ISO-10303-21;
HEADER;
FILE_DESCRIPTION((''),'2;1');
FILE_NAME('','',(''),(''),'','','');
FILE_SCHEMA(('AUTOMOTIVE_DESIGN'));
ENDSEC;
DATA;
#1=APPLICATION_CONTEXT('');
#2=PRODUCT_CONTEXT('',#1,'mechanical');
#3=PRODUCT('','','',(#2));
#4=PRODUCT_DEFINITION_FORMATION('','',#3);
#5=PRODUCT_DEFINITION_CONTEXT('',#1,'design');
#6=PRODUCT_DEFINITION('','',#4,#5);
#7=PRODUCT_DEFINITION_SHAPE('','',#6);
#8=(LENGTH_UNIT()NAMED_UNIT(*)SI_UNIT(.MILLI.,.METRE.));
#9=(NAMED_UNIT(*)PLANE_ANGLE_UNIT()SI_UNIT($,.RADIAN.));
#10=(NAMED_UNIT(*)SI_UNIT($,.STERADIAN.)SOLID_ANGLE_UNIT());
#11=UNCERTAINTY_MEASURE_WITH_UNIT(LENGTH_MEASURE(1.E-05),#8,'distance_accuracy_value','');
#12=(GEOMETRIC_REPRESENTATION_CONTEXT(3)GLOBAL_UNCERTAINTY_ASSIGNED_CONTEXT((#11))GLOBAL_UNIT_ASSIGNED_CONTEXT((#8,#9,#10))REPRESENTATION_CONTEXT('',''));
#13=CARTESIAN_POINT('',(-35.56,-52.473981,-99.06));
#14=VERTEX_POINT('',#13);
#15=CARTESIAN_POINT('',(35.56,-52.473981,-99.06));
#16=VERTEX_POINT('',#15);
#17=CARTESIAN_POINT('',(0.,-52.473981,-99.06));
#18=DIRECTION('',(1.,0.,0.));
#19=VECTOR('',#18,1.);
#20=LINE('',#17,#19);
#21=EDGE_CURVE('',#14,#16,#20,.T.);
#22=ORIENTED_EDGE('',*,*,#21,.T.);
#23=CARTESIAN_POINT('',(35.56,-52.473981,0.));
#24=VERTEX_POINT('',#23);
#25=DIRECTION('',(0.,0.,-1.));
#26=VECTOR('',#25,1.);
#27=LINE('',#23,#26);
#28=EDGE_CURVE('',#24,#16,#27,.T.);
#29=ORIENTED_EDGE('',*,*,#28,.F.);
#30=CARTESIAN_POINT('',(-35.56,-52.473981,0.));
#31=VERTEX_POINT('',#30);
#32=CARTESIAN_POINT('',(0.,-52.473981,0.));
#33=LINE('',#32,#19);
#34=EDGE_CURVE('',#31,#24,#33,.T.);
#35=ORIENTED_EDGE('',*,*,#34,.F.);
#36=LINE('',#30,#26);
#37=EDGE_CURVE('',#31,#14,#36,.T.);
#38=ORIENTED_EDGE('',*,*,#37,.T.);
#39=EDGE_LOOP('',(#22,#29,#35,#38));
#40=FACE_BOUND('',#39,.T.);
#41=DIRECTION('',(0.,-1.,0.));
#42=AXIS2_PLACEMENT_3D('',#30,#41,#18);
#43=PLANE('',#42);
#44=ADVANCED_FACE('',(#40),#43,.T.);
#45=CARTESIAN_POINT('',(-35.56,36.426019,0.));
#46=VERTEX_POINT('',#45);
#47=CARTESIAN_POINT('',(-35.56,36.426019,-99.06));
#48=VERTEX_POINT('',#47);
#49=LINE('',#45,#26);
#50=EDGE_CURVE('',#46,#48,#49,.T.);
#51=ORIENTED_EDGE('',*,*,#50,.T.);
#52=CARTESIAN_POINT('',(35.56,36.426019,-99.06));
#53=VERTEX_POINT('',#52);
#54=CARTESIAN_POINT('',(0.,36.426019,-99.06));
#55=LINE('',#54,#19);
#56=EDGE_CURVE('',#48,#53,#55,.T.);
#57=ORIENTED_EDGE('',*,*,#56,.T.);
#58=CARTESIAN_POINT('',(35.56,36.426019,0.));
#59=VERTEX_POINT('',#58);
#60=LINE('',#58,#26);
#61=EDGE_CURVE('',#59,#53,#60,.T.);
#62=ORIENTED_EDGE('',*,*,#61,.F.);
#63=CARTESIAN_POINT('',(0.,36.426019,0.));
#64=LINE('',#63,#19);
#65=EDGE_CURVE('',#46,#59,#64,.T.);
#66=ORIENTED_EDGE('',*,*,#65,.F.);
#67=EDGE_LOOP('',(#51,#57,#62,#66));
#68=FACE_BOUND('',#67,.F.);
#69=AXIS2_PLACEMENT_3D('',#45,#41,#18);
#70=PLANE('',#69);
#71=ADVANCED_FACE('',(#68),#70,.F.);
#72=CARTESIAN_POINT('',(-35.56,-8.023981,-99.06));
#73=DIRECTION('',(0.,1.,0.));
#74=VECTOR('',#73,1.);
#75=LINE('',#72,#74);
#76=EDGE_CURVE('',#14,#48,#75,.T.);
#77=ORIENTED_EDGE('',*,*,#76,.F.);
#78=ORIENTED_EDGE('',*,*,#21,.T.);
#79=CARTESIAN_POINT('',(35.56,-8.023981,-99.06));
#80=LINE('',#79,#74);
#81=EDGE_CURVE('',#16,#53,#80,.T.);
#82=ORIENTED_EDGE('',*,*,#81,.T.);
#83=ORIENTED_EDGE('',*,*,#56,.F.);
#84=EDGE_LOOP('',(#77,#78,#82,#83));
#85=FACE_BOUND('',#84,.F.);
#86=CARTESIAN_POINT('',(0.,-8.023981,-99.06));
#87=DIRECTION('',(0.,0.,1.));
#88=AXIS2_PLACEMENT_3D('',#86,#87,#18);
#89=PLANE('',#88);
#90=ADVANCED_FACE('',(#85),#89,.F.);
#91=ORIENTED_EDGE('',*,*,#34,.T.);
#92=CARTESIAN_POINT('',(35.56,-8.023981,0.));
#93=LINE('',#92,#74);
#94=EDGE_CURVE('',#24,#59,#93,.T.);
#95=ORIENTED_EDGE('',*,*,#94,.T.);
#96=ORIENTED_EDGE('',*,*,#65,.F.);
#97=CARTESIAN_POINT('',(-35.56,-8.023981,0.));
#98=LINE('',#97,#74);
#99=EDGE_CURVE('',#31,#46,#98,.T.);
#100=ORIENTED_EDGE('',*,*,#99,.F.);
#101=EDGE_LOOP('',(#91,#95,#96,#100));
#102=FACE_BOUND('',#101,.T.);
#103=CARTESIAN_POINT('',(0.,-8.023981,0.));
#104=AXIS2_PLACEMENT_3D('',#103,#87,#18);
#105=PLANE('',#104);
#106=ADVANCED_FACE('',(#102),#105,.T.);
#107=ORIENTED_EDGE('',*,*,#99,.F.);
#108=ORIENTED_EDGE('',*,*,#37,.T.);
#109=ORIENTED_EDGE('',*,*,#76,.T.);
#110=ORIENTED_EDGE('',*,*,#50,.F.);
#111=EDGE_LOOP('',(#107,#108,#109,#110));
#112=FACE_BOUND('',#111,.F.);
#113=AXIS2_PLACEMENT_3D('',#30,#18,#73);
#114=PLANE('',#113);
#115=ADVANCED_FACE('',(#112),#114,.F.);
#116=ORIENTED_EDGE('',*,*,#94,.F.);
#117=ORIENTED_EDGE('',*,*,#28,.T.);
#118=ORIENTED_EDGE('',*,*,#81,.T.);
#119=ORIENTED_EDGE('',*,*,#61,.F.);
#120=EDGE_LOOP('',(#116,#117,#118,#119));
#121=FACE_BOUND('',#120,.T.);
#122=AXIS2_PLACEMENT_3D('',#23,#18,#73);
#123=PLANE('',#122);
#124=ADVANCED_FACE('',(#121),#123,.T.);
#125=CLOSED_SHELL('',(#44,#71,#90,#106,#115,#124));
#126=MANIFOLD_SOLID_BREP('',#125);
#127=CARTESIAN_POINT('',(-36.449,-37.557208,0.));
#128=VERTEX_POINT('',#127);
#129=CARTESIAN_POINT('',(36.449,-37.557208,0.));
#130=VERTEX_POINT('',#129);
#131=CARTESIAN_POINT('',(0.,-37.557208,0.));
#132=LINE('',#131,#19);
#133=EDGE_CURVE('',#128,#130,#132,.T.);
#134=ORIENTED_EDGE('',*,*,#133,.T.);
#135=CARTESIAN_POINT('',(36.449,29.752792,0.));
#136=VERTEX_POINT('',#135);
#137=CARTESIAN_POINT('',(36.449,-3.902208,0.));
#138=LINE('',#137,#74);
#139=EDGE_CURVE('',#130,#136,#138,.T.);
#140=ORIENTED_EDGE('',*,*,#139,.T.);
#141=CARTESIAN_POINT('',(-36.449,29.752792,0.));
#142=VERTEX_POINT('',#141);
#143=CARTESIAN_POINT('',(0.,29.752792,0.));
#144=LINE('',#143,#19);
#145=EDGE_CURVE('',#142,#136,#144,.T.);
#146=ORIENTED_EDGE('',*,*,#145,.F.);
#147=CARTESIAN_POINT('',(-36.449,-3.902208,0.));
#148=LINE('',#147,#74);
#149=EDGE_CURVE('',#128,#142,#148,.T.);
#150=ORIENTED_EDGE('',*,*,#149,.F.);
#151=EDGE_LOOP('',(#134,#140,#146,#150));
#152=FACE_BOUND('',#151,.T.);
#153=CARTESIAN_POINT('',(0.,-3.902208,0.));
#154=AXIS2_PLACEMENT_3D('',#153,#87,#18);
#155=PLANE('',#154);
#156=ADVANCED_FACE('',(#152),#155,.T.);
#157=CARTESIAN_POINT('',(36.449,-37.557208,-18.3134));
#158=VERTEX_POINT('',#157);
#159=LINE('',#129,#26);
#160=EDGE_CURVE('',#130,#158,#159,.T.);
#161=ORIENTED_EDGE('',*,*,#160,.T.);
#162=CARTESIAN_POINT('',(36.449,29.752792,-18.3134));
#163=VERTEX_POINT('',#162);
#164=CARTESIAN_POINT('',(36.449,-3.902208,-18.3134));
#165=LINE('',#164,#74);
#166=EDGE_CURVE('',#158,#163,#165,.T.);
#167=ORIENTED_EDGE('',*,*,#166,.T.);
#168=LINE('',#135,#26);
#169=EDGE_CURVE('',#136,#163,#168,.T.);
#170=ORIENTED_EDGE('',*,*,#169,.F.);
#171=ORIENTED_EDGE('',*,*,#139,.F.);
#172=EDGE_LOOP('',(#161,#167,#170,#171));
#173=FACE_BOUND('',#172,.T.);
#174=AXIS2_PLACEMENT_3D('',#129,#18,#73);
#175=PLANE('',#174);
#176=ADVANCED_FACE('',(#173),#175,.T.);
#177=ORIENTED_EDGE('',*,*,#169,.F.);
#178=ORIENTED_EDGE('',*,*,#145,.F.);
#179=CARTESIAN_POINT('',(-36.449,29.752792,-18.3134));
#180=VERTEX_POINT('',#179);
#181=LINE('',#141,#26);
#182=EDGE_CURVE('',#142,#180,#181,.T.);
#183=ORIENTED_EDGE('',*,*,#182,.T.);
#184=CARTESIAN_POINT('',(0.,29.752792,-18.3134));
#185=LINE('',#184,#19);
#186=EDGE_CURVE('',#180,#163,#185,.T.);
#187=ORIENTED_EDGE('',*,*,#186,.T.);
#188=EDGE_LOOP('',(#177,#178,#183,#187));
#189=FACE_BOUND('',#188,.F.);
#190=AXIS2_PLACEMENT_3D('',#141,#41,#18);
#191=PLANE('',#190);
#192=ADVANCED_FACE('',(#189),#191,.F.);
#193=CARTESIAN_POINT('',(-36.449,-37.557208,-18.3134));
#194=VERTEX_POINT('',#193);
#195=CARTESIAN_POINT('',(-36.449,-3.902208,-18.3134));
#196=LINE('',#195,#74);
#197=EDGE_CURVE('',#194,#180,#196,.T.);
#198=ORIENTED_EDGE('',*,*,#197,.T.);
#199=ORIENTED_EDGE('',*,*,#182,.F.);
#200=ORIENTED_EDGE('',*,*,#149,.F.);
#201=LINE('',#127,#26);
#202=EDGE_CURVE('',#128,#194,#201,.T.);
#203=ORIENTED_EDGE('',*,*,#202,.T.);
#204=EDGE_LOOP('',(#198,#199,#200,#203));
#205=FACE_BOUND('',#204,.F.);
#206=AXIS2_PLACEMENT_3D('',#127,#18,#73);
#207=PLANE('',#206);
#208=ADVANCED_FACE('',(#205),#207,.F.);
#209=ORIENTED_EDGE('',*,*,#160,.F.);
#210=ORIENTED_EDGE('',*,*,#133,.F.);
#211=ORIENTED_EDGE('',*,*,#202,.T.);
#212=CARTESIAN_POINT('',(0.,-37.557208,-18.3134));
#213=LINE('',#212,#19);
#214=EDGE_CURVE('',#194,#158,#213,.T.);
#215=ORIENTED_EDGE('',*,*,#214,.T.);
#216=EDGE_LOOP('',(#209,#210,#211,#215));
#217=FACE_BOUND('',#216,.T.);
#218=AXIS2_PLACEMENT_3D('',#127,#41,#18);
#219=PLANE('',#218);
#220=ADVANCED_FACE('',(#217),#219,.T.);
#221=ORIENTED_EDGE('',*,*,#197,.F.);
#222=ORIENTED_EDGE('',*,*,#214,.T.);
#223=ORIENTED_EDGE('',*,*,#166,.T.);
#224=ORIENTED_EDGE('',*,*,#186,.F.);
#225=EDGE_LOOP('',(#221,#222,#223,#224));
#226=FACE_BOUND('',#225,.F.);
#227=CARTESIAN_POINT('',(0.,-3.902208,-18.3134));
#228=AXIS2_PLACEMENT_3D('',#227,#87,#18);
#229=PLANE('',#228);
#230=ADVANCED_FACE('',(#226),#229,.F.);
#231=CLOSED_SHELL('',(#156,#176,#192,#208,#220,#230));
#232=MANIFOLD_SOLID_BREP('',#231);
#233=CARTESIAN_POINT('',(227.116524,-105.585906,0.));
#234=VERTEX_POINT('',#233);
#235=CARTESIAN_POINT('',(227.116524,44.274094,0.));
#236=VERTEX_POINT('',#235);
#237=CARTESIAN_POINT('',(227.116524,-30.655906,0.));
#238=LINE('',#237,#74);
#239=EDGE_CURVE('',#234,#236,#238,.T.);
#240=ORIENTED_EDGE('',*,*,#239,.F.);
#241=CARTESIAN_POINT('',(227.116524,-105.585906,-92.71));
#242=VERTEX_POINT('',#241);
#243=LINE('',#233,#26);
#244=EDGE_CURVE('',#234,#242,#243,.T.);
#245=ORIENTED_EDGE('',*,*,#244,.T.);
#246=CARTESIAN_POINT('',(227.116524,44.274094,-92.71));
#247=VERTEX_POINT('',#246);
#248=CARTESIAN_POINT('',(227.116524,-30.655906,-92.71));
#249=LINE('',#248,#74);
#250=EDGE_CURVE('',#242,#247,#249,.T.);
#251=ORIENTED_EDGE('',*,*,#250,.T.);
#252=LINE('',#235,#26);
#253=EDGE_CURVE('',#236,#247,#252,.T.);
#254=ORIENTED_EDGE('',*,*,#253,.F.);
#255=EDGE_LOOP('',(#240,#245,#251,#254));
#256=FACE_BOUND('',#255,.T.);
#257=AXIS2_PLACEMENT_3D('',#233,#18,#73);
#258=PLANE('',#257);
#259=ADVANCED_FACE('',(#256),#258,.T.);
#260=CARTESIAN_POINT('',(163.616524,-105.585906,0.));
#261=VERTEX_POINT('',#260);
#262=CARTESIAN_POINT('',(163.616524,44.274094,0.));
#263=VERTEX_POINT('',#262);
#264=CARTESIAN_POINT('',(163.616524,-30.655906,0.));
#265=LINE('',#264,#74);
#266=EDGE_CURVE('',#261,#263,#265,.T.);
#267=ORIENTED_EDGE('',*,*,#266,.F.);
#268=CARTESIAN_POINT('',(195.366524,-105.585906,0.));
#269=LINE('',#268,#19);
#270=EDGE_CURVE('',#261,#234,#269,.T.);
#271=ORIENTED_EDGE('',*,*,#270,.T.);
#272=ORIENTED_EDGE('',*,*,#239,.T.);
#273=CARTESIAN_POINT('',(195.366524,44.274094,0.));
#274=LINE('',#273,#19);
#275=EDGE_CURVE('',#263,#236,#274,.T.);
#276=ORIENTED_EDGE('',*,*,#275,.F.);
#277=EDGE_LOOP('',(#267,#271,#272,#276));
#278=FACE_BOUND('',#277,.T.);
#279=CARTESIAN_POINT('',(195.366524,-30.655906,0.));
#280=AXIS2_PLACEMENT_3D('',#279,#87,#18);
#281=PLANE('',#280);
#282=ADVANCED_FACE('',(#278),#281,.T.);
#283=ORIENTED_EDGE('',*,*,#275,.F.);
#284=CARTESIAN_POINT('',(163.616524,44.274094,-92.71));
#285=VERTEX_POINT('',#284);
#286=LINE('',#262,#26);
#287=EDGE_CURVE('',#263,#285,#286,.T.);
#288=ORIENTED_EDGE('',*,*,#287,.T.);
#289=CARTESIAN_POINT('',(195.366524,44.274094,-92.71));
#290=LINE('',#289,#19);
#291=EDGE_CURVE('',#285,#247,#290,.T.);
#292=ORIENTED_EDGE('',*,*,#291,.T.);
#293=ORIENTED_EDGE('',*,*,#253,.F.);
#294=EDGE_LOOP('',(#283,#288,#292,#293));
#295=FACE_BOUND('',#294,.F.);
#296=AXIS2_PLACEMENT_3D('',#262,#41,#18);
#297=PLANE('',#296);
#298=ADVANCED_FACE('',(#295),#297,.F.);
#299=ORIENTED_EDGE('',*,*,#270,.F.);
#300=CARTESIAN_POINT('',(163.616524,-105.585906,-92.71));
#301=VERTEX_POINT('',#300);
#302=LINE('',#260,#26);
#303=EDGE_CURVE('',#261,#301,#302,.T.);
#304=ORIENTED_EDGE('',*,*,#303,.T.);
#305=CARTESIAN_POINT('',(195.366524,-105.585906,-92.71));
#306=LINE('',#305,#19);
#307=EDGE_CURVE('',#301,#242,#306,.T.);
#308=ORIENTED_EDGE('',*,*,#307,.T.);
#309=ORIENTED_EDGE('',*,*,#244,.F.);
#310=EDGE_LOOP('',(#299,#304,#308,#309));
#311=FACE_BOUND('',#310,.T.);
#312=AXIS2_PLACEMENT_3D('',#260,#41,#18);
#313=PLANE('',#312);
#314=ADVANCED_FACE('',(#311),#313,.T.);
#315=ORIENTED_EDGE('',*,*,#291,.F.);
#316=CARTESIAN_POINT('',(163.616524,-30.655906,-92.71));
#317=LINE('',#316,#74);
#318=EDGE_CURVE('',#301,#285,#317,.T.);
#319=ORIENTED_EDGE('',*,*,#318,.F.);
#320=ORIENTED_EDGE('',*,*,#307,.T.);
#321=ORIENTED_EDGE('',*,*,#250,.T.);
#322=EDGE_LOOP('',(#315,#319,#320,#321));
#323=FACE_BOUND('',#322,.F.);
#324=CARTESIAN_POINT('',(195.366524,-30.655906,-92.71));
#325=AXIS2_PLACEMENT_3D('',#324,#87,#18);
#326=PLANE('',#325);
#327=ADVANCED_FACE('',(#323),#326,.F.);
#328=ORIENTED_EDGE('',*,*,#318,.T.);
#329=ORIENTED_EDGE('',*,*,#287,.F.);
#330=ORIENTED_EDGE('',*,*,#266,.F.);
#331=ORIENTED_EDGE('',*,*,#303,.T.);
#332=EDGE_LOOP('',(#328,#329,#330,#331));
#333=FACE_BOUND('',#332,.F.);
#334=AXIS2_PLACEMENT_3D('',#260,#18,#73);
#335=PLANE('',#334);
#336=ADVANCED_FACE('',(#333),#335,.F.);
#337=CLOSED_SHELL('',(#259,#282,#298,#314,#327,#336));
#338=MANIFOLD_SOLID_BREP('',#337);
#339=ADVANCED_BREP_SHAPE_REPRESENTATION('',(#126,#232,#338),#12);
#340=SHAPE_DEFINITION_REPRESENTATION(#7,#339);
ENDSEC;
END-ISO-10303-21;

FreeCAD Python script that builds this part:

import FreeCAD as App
import Part
import Sketcher
from FreeCAD import Vector
Q = App.Units.Quantity

doc = App.newDocument("Part")
body = doc.addObject("PartDesign::Body", "Body")

# Sketch on XY plane
sketch1 = body.newObject("Sketcher::SketchObject", "Sketch")
sketch1.AttachmentSupport = (doc.getObject("XY_Plane"), [""])
sketch1.MapMode = "FlatFace"
sketch1.addGeometry([
    Part.LineSegment(Vector(-36, 30, 0), Vector(-36, -38, 0)),
    Part.LineSegment(Vector(-36, -38, 0), Vector(36, -38, 0)),
    Part.LineSegment(Vector(36, -38, 0), Vector(36, 30, 0)),
    Part.LineSegment(Vector(36, 30, 0), Vector(-36, 30, 0)),
], False)
sketch1.addConstraint([
    Sketcher.Constraint("Coincident", 0, 2, 1, 1),
    Sketcher.Constraint("Coincident", 1, 2, 2, 1),
    Sketcher.Constraint("Coincident", 2, 2, 3, 1),
    Sketcher.Constraint("Coincident", 3, 2, 0, 1),
    Sketcher.Constraint("Vertical", 0),
    Sketcher.Constraint("Horizontal", 1),
    Sketcher.Constraint("Vertical", 2),
    Sketcher.Constraint("Horizontal", 3),
    Sketcher.Constraint("DistanceX", 1, 1, 1, 2, Q("2.87 in")),
    Sketcher.Constraint("DistanceY", 0, 2, 0, 1, Q("2.65 in")),
    Sketcher.Constraint("DistanceX", 0, 2, -1, 1, Q("1.435 in")),
    Sketcher.Constraint("DistanceY", 0, 2, -1, 1, 37.557208),
])
pad1 = body.newObject("PartDesign::Pad", "Pad")
pad1.Profile = sketch1
pad1.Length = Q("0.721 in")
pad1.Reversed = True
body2 = doc.addObject("PartDesign::Body", "Body001")

# Sketch on XY plane
sketch2 = body2.newObject("Sketcher::SketchObject", "Sketch001")
sketch2.AttachmentSupport = (doc.getObject("XY_Plane001"), [""])
sketch2.MapMode = "FlatFace"
sketch2.addGeometry([
    Part.LineSegment(Vector(-36, 36, 0), Vector(-36, -52, 0)),
    Part.LineSegment(Vector(-36, -52, 0), Vector(36, -52, 0)),
    Part.LineSegment(Vector(36, -52, 0), Vector(36, 36, 0)),
    Part.LineSegment(Vector(36, 36, 0), Vector(-36, 36, 0)),
], False)
sketch2.addConstraint([
    Sketcher.Constraint("Coincident", 0, 2, 1, 1),
    Sketcher.Constraint("Coincident", 1, 2, 2, 1),
    Sketcher.Constraint("Coincident", 2, 2, 3, 1),
    Sketcher.Constraint("Coincident", 3, 2, 0, 1),
    Sketcher.Constraint("Vertical", 0),
    Sketcher.Constraint("Horizontal", 1),
    Sketcher.Constraint("Vertical", 2),
    Sketcher.Constraint("Horizontal", 3),
    Sketcher.Constraint("DistanceX", 1, 1, 1, 2, Q("2.8 in")),
    Sketcher.Constraint("DistanceY", 0, 2, 0, 1, Q("3.5 in")),
    Sketcher.Constraint("DistanceX", 0, 2, -1, 1, Q("1.4 in")),
    Sketcher.Constraint("DistanceY", 0, 2, -1, 1, 52.473981),
])
pad2 = body2.newObject("PartDesign::Pad", "Pad001")
pad2.Profile = sketch2
pad2.Length = Q("3.9 in")
pad2.Reversed = True
body3 = doc.addObject("PartDesign::Body", "Body002")

# Sketch on XY plane
sketch3 = body3.newObject("Sketcher::SketchObject", "Sketch002")
sketch3.AttachmentSupport = (doc.getObject("XY_Plane002"), [""])
sketch3.MapMode = "FlatFace"
sketch3.addGeometry([
    Part.LineSegment(Vector(164, 44, 0), Vector(164, -106, 0)),
    Part.LineSegment(Vector(164, -106, 0), Vector(227, -106, 0)),
    Part.LineSegment(Vector(227, -106, 0), Vector(227, 44, 0)),
    Part.LineSegment(Vector(227, 44, 0), Vector(164, 44, 0)),
], False)
sketch3.addConstraint([
    Sketcher.Constraint("Coincident", 0, 2, 1, 1),
    Sketcher.Constraint("Coincident", 1, 2, 2, 1),
    Sketcher.Constraint("Coincident", 2, 2, 3, 1),
    Sketcher.Constraint("Coincident", 3, 2, 0, 1),
    Sketcher.Constraint("Vertical", 0),
    Sketcher.Constraint("Horizontal", 1),
    Sketcher.Constraint("Vertical", 2),
    Sketcher.Constraint("Horizontal", 3),
    Sketcher.Constraint("DistanceX", 1, 1, 1, 2, Q("2.5 in")),
    Sketcher.Constraint("DistanceY", 0, 2, 0, 1, Q("5.9 in")),
    Sketcher.Constraint("DistanceX", -1, 1, 0, 2, 163.616524),
    Sketcher.Constraint("DistanceY", 0, 2, -1, 1, 105.585906),
])
pad3 = body3.newObject("PartDesign::Pad", "Pad002")
pad3.Profile = sketch3
pad3.Length = Q("3.65 in")
pad3.Reversed = True

doc.recompute()
